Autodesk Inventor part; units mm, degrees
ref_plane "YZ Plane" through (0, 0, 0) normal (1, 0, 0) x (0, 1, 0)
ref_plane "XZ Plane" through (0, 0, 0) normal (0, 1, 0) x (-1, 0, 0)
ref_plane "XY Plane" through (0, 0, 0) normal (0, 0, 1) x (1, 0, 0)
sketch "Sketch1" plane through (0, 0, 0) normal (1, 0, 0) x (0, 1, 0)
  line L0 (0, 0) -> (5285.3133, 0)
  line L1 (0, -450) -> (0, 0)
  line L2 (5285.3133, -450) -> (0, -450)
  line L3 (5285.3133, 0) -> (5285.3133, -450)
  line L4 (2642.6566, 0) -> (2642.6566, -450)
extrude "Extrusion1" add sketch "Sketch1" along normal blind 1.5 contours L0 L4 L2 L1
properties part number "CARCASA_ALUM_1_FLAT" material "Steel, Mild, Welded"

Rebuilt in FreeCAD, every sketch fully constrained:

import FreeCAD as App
import Part
import Sketcher

V = App.Vector
Q = App.Units.Quantity


def add_polygon(sketch, points):
    """Adds a closed chain of lines whose ends are joined by coincident constraints."""
    first, n = sketch.GeometryCount, len(points)
    for a, b in zip(points, points[1:] + points[:1]):
        sketch.addGeometry(Part.LineSegment(App.Vector(*a, 0), App.Vector(*b, 0)), False)
    for i in range(n):
        sketch.addConstraint(Sketcher.Constraint("Coincident", first + i, 2, first + (i + 1) % n, 1))

doc = App.newDocument("Part")
body = doc.addObject("PartDesign::Body", "Body")

sketch1 = body.newObject("Sketcher::SketchObject", "Sketch")
sketch1.AttachmentSupport = (doc.getObject("YZ_Plane"), [""])
sketch1.MapMode = "FlatFace"
add_polygon(sketch1, [(2643, 0), (0, 0), (0, -450), (2643, -450)])
sketch1.addConstraint([
    Sketcher.Constraint("Horizontal", 0),
    Sketcher.Constraint("Vertical", 1),
    Sketcher.Constraint("Horizontal", 2),
    Sketcher.Constraint("Vertical", 3),
    Sketcher.Constraint("Coincident", 0, 2, -1, 1),
    Sketcher.Constraint("DistanceY", 1, 2, 1, 1, Q("450 mm")),
    Sketcher.Constraint("DistanceX", 0, 2, 0, 1, Q("2642.6566 mm")),
])
pad1 = body.newObject("PartDesign::Pad", "Pad")
pad1.Profile = sketch1
pad1.Length = 1.5

doc.recompute()
